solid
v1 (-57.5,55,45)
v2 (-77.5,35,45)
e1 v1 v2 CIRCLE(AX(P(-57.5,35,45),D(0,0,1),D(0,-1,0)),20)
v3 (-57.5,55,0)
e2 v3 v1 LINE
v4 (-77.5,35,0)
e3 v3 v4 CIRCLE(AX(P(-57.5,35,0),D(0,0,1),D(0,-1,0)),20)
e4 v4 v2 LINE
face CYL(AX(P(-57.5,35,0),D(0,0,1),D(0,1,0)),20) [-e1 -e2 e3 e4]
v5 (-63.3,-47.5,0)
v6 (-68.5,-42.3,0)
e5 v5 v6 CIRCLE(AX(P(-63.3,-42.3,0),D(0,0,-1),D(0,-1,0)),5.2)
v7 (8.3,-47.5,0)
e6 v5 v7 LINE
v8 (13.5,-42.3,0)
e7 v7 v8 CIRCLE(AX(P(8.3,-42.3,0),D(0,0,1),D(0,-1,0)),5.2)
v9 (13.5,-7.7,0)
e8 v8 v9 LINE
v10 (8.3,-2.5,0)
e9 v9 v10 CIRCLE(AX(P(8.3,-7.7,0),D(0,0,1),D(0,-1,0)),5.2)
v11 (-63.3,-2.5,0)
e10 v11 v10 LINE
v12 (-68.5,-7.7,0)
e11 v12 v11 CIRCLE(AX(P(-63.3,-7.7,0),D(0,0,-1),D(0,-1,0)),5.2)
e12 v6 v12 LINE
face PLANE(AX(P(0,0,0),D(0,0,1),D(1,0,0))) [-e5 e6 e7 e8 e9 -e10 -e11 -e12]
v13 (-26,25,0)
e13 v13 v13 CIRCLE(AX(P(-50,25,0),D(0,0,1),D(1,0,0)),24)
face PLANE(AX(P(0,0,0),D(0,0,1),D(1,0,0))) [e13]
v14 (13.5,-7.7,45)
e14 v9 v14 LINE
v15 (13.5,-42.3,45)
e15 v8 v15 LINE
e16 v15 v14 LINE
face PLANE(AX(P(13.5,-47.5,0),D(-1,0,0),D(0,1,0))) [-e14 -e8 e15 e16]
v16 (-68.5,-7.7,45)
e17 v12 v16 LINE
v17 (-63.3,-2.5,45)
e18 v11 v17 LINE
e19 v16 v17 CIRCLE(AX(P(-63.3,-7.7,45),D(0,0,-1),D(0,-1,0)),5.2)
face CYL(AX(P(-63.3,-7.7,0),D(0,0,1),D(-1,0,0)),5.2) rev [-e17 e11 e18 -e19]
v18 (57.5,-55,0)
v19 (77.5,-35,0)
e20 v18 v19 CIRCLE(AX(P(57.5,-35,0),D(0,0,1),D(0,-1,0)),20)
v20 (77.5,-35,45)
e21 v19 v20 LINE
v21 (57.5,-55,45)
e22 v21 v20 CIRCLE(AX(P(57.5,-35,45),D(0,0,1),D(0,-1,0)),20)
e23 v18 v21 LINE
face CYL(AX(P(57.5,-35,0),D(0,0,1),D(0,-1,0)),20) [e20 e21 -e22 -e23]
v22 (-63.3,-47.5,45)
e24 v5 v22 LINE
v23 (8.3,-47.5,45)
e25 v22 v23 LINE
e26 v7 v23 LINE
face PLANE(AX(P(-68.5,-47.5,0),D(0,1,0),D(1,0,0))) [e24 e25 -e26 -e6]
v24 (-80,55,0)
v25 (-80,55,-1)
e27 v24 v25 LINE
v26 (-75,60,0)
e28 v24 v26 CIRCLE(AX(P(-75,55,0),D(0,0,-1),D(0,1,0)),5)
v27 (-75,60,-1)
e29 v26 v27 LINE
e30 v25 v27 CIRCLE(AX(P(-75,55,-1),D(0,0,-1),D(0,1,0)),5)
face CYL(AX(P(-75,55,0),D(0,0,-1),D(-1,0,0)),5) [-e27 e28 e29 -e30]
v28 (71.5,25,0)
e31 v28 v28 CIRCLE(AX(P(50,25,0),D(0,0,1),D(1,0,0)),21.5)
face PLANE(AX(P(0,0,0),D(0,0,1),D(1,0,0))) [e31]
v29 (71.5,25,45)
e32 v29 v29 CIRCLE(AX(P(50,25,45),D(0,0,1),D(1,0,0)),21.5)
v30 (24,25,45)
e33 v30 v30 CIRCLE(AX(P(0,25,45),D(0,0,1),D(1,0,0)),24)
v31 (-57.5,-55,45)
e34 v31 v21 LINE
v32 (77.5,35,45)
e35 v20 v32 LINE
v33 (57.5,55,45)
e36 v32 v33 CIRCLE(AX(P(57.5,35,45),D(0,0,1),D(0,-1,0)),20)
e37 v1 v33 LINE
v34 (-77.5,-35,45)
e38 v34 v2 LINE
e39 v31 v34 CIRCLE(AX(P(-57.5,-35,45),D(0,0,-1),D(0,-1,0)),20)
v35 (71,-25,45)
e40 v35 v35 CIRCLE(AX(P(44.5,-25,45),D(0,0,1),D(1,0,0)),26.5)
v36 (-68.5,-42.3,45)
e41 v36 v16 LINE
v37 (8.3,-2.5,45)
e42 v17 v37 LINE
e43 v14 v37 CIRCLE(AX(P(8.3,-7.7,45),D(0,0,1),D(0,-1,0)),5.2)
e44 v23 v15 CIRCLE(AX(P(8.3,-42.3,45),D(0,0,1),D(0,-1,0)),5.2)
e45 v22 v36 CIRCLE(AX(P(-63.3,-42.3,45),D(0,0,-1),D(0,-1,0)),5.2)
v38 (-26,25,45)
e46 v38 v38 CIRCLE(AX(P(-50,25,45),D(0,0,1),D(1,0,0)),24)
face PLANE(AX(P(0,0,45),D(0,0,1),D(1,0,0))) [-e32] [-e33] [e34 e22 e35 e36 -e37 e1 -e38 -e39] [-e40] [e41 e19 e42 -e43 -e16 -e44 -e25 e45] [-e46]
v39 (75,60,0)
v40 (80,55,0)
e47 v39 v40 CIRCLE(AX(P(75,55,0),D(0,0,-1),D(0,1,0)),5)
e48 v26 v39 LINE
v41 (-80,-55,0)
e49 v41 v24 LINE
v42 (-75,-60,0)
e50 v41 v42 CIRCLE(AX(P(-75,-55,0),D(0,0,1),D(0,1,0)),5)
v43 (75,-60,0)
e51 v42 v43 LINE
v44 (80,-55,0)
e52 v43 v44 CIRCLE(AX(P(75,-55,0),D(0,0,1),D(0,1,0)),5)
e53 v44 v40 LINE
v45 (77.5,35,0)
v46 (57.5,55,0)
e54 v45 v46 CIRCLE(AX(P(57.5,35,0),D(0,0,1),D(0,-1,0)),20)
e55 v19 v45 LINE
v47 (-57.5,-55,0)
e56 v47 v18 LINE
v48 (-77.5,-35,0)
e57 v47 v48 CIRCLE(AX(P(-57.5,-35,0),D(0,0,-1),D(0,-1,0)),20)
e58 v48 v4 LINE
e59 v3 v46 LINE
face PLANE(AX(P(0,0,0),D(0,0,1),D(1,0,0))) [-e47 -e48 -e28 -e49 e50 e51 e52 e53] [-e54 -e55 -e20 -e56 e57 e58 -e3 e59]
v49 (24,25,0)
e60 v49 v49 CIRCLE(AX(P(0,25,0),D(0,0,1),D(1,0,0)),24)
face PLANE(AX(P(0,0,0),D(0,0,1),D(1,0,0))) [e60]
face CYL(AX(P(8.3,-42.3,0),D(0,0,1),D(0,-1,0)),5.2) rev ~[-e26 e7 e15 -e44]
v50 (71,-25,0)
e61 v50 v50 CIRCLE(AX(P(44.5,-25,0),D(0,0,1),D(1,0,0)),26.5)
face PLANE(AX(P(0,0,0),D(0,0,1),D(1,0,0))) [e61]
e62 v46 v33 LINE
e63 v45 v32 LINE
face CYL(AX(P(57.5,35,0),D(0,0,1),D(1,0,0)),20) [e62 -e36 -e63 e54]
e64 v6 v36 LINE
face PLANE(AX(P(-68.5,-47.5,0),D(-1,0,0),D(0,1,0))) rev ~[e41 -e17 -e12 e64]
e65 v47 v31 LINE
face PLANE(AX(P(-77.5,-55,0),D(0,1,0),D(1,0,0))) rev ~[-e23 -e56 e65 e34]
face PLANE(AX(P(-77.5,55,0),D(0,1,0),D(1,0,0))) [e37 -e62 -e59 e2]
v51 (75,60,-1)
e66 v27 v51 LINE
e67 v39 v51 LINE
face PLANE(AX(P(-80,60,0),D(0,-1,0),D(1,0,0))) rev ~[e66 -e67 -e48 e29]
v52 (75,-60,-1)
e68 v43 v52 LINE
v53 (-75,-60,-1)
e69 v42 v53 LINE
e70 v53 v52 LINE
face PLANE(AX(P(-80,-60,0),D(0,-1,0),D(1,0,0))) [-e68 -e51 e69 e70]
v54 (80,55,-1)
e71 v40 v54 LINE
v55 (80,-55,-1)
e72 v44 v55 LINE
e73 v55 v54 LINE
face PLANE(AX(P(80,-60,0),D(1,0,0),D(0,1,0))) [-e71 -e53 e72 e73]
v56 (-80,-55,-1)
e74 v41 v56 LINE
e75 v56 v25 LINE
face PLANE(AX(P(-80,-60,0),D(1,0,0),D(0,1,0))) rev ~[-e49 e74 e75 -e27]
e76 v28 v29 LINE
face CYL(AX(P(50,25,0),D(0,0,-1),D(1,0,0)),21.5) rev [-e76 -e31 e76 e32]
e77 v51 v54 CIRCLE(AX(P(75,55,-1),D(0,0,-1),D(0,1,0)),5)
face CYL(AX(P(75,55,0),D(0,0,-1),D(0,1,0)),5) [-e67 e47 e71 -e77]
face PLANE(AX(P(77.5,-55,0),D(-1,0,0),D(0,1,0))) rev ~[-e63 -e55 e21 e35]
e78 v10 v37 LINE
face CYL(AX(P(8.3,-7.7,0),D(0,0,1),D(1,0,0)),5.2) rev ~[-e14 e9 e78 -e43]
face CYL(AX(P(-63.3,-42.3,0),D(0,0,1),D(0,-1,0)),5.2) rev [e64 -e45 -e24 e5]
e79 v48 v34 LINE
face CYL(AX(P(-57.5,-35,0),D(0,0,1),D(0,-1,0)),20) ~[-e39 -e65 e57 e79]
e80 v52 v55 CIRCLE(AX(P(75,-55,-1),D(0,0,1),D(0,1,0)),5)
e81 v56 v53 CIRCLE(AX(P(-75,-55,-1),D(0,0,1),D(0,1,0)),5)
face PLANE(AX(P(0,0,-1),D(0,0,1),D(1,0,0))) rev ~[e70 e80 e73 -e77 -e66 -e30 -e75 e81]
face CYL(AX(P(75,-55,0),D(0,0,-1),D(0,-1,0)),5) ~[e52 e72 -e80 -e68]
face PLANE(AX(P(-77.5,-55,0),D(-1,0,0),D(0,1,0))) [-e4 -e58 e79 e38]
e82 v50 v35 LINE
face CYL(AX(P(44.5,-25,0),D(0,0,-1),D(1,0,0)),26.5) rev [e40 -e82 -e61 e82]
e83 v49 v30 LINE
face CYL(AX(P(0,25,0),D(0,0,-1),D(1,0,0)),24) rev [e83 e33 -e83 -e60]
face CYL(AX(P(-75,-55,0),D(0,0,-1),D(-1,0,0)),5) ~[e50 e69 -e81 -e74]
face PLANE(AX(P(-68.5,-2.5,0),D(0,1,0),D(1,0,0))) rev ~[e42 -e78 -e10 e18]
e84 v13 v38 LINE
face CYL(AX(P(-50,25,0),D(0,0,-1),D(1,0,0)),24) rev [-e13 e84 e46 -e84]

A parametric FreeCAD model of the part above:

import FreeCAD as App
import Part
import Sketcher


def edges_at(feature, points):
    """Names of the edges that pass closest to the given points."""
    edges = feature.Shape.Edges
    near = lambda p: min(range(len(edges)), key=lambda i: edges[i].distToShape(Part.Vertex(*p))[0])
    return sorted({f"Edge{near(p) + 1}" for p in points})


def add_polygon(sketch, points):
    """Adds a closed chain of lines whose ends are joined by coincident constraints."""
    first, n = sketch.GeometryCount, len(points)
    for a, b in zip(points, points[1:] + points[:1]):
        sketch.addGeometry(Part.LineSegment(App.Vector(*a, 0), App.Vector(*b, 0)), False)
    for i in range(n):
        sketch.addConstraint(Sketcher.Constraint("Coincident", first + i, 2, first + (i + 1) % n, 1))

doc = App.newDocument("Part")
body = doc.addObject("PartDesign::Body", "Body")

# Sketch on XY plane
sketch1 = doc.addObject("Sketcher::SketchObject", "Sketch")
body.addObject(sketch1)
sketch1.AttachmentSupport = (doc.XY_Plane, [""])
sketch1.MapMode = "FlatFace"
add_polygon(sketch1, [(-78, 55), (-78, -55), (78, -55), (78, 55)])  # lines 0-3
add_polygon(sketch1, [(14, -48), (-68, -48), (-68, -2), (14, -2)])  # lines 4-7
sketch1.addGeometry(Part.Circle(App.Vector(44, -25, 0), App.Vector(0, 0, 1), 26), False)  # 8
sketch1.addGeometry(Part.Circle(App.Vector(-50, 25, 0), App.Vector(0, 0, 1), 24), False)  # 9
sketch1.addGeometry(Part.Circle(App.Vector(0, 25, 0), App.Vector(0, 0, 1), 24), False)  # 10
sketch1.addGeometry(Part.Circle(App.Vector(50, 25, 0), App.Vector(0, 0, 1), 22), False)  # 11
sketch1.addConstraint(Sketcher.Constraint("Vertical", 0))
sketch1.addConstraint(Sketcher.Constraint("Horizontal", 1))
sketch1.addConstraint(Sketcher.Constraint("Vertical", 2))
sketch1.addConstraint(Sketcher.Constraint("Horizontal", 3))
sketch1.addConstraint(Sketcher.Constraint("Horizontal", 4))
sketch1.addConstraint(Sketcher.Constraint("Vertical", 5))
sketch1.addConstraint(Sketcher.Constraint("Horizontal", 6))
sketch1.addConstraint(Sketcher.Constraint("Vertical", 7))
sketch1.addConstraint(Sketcher.Constraint("Equal", 9, 10))
sketch1.addConstraint(Sketcher.Constraint("Symmetric", 0, 2, 2, 2, -1, 1))
sketch1.addConstraint(Sketcher.Constraint("Symmetric", 9, 3, 11, 3, -2))
sketch1.addConstraint(Sketcher.Constraint("PointOnObject", 10, 3, -2))
sketch1.addConstraint(Sketcher.Constraint("Horizontal", 9, 3, 10, 3))
sketch1.addConstraint(Sketcher.Constraint("Diameter", 8, 53.0))
sketch1.addConstraint(Sketcher.Constraint("Diameter", 9, 48.0))
sketch1.addConstraint(Sketcher.Constraint("Diameter", 11, 43.0))
sketch1.addConstraint(Sketcher.Constraint("DistanceX", 1, 1, 1, 2, 155.0))
sketch1.addConstraint(Sketcher.Constraint("DistanceX", 4, 2, 4, 1, 82.0))
sketch1.addConstraint(Sketcher.Constraint("DistanceY", 0, 2, 0, 1, 110.0))
sketch1.addConstraint(Sketcher.Constraint("DistanceY", 5, 1, 5, 2, 45.0))
sketch1.addConstraint(Sketcher.Constraint("DistanceY", 8, 3, -1, 1, 25.0))
sketch1.addConstraint(Sketcher.Constraint("DistanceX", 9, 3, -1, 1, 50.0))
sketch1.addConstraint(Sketcher.Constraint("DistanceY", -1, 1, 9, 3, 25.0))
sketch1.addConstraint(Sketcher.Constraint("DistanceX", 0, 2, 8, 3, 122.0))
sketch1.addConstraint(Sketcher.Constraint("DistanceX", 0, 2, 4, 2, 9.0))
sketch1.addConstraint(Sketcher.Constraint("DistanceY", 4, 2, -1, 1, 47.5))
pad1 = doc.addObject("PartDesign::Pad", "Pad")
body.addObject(pad1)
pad1.Profile = sketch1
pad1.Length = 45

# Sketch on XY plane
sketch2 = doc.addObject("Sketcher::SketchObject", "Sketch001")
body.addObject(sketch2)
sketch2.AttachmentSupport = (doc.XY_Plane, [""])
sketch2.MapMode = "FlatFace"
add_polygon(sketch2, [(-80, 60), (-80, -60), (80, -60), (80, 60)])  # lines 0-3
sketch2.addConstraint(Sketcher.Constraint("Vertical", 0))
sketch2.addConstraint(Sketcher.Constraint("Horizontal", 1))
sketch2.addConstraint(Sketcher.Constraint("Vertical", 2))
sketch2.addConstraint(Sketcher.Constraint("Horizontal", 3))
sketch2.addConstraint(Sketcher.Constraint("Symmetric", 0, 2, 2, 2, -1, 1))
sketch2.addConstraint(Sketcher.Constraint("DistanceX", 1, 1, 1, 2, 160.0))
sketch2.addConstraint(Sketcher.Constraint("DistanceY", 0, 2, 0, 1, 120.0))
pad2 = doc.addObject("PartDesign::Pad", "Pad001")
body.addObject(pad2)
pad2.Profile = sketch2
pad2.Length = 1
pad2.Reversed = True
doc.recompute()

fillet = doc.addObject("PartDesign::Fillet", "Fillet")
body.addObject(fillet)
fillet.Base = (pad2, edges_at(pad2, [
    (-80, -60, -0.5),
    (-80, 60, -0.5),
    (80, 60, -0.5),
    (80, -60, -0.5),
]))
fillet.Radius = 5
doc.recompute()

fillet2 = doc.addObject("PartDesign::Fillet", "Fillet001")
body.addObject(fillet2)
fillet2.Base = (fillet, edges_at(fillet, [
    (77.5, -55, 22.5),
    (-77.5, -55, 22.5),
    (-77.5, 55, 22.5),
    (77.5, 55, 22.5),
]))
fillet2.Radius = 20
doc.recompute()

fillet3 = doc.addObject("PartDesign::Fillet", "Fillet002")
body.addObject(fillet3)
fillet3.Base = (fillet2, edges_at(fillet2, [
    (-68.5, -47.5, 22.5),
    (-68.5, -2.5, 22.5),
    (13.5, -2.5, 22.5),
    (13.5, -47.5, 22.5),
]))
fillet3.Radius = 5.2

doc.recompute()
